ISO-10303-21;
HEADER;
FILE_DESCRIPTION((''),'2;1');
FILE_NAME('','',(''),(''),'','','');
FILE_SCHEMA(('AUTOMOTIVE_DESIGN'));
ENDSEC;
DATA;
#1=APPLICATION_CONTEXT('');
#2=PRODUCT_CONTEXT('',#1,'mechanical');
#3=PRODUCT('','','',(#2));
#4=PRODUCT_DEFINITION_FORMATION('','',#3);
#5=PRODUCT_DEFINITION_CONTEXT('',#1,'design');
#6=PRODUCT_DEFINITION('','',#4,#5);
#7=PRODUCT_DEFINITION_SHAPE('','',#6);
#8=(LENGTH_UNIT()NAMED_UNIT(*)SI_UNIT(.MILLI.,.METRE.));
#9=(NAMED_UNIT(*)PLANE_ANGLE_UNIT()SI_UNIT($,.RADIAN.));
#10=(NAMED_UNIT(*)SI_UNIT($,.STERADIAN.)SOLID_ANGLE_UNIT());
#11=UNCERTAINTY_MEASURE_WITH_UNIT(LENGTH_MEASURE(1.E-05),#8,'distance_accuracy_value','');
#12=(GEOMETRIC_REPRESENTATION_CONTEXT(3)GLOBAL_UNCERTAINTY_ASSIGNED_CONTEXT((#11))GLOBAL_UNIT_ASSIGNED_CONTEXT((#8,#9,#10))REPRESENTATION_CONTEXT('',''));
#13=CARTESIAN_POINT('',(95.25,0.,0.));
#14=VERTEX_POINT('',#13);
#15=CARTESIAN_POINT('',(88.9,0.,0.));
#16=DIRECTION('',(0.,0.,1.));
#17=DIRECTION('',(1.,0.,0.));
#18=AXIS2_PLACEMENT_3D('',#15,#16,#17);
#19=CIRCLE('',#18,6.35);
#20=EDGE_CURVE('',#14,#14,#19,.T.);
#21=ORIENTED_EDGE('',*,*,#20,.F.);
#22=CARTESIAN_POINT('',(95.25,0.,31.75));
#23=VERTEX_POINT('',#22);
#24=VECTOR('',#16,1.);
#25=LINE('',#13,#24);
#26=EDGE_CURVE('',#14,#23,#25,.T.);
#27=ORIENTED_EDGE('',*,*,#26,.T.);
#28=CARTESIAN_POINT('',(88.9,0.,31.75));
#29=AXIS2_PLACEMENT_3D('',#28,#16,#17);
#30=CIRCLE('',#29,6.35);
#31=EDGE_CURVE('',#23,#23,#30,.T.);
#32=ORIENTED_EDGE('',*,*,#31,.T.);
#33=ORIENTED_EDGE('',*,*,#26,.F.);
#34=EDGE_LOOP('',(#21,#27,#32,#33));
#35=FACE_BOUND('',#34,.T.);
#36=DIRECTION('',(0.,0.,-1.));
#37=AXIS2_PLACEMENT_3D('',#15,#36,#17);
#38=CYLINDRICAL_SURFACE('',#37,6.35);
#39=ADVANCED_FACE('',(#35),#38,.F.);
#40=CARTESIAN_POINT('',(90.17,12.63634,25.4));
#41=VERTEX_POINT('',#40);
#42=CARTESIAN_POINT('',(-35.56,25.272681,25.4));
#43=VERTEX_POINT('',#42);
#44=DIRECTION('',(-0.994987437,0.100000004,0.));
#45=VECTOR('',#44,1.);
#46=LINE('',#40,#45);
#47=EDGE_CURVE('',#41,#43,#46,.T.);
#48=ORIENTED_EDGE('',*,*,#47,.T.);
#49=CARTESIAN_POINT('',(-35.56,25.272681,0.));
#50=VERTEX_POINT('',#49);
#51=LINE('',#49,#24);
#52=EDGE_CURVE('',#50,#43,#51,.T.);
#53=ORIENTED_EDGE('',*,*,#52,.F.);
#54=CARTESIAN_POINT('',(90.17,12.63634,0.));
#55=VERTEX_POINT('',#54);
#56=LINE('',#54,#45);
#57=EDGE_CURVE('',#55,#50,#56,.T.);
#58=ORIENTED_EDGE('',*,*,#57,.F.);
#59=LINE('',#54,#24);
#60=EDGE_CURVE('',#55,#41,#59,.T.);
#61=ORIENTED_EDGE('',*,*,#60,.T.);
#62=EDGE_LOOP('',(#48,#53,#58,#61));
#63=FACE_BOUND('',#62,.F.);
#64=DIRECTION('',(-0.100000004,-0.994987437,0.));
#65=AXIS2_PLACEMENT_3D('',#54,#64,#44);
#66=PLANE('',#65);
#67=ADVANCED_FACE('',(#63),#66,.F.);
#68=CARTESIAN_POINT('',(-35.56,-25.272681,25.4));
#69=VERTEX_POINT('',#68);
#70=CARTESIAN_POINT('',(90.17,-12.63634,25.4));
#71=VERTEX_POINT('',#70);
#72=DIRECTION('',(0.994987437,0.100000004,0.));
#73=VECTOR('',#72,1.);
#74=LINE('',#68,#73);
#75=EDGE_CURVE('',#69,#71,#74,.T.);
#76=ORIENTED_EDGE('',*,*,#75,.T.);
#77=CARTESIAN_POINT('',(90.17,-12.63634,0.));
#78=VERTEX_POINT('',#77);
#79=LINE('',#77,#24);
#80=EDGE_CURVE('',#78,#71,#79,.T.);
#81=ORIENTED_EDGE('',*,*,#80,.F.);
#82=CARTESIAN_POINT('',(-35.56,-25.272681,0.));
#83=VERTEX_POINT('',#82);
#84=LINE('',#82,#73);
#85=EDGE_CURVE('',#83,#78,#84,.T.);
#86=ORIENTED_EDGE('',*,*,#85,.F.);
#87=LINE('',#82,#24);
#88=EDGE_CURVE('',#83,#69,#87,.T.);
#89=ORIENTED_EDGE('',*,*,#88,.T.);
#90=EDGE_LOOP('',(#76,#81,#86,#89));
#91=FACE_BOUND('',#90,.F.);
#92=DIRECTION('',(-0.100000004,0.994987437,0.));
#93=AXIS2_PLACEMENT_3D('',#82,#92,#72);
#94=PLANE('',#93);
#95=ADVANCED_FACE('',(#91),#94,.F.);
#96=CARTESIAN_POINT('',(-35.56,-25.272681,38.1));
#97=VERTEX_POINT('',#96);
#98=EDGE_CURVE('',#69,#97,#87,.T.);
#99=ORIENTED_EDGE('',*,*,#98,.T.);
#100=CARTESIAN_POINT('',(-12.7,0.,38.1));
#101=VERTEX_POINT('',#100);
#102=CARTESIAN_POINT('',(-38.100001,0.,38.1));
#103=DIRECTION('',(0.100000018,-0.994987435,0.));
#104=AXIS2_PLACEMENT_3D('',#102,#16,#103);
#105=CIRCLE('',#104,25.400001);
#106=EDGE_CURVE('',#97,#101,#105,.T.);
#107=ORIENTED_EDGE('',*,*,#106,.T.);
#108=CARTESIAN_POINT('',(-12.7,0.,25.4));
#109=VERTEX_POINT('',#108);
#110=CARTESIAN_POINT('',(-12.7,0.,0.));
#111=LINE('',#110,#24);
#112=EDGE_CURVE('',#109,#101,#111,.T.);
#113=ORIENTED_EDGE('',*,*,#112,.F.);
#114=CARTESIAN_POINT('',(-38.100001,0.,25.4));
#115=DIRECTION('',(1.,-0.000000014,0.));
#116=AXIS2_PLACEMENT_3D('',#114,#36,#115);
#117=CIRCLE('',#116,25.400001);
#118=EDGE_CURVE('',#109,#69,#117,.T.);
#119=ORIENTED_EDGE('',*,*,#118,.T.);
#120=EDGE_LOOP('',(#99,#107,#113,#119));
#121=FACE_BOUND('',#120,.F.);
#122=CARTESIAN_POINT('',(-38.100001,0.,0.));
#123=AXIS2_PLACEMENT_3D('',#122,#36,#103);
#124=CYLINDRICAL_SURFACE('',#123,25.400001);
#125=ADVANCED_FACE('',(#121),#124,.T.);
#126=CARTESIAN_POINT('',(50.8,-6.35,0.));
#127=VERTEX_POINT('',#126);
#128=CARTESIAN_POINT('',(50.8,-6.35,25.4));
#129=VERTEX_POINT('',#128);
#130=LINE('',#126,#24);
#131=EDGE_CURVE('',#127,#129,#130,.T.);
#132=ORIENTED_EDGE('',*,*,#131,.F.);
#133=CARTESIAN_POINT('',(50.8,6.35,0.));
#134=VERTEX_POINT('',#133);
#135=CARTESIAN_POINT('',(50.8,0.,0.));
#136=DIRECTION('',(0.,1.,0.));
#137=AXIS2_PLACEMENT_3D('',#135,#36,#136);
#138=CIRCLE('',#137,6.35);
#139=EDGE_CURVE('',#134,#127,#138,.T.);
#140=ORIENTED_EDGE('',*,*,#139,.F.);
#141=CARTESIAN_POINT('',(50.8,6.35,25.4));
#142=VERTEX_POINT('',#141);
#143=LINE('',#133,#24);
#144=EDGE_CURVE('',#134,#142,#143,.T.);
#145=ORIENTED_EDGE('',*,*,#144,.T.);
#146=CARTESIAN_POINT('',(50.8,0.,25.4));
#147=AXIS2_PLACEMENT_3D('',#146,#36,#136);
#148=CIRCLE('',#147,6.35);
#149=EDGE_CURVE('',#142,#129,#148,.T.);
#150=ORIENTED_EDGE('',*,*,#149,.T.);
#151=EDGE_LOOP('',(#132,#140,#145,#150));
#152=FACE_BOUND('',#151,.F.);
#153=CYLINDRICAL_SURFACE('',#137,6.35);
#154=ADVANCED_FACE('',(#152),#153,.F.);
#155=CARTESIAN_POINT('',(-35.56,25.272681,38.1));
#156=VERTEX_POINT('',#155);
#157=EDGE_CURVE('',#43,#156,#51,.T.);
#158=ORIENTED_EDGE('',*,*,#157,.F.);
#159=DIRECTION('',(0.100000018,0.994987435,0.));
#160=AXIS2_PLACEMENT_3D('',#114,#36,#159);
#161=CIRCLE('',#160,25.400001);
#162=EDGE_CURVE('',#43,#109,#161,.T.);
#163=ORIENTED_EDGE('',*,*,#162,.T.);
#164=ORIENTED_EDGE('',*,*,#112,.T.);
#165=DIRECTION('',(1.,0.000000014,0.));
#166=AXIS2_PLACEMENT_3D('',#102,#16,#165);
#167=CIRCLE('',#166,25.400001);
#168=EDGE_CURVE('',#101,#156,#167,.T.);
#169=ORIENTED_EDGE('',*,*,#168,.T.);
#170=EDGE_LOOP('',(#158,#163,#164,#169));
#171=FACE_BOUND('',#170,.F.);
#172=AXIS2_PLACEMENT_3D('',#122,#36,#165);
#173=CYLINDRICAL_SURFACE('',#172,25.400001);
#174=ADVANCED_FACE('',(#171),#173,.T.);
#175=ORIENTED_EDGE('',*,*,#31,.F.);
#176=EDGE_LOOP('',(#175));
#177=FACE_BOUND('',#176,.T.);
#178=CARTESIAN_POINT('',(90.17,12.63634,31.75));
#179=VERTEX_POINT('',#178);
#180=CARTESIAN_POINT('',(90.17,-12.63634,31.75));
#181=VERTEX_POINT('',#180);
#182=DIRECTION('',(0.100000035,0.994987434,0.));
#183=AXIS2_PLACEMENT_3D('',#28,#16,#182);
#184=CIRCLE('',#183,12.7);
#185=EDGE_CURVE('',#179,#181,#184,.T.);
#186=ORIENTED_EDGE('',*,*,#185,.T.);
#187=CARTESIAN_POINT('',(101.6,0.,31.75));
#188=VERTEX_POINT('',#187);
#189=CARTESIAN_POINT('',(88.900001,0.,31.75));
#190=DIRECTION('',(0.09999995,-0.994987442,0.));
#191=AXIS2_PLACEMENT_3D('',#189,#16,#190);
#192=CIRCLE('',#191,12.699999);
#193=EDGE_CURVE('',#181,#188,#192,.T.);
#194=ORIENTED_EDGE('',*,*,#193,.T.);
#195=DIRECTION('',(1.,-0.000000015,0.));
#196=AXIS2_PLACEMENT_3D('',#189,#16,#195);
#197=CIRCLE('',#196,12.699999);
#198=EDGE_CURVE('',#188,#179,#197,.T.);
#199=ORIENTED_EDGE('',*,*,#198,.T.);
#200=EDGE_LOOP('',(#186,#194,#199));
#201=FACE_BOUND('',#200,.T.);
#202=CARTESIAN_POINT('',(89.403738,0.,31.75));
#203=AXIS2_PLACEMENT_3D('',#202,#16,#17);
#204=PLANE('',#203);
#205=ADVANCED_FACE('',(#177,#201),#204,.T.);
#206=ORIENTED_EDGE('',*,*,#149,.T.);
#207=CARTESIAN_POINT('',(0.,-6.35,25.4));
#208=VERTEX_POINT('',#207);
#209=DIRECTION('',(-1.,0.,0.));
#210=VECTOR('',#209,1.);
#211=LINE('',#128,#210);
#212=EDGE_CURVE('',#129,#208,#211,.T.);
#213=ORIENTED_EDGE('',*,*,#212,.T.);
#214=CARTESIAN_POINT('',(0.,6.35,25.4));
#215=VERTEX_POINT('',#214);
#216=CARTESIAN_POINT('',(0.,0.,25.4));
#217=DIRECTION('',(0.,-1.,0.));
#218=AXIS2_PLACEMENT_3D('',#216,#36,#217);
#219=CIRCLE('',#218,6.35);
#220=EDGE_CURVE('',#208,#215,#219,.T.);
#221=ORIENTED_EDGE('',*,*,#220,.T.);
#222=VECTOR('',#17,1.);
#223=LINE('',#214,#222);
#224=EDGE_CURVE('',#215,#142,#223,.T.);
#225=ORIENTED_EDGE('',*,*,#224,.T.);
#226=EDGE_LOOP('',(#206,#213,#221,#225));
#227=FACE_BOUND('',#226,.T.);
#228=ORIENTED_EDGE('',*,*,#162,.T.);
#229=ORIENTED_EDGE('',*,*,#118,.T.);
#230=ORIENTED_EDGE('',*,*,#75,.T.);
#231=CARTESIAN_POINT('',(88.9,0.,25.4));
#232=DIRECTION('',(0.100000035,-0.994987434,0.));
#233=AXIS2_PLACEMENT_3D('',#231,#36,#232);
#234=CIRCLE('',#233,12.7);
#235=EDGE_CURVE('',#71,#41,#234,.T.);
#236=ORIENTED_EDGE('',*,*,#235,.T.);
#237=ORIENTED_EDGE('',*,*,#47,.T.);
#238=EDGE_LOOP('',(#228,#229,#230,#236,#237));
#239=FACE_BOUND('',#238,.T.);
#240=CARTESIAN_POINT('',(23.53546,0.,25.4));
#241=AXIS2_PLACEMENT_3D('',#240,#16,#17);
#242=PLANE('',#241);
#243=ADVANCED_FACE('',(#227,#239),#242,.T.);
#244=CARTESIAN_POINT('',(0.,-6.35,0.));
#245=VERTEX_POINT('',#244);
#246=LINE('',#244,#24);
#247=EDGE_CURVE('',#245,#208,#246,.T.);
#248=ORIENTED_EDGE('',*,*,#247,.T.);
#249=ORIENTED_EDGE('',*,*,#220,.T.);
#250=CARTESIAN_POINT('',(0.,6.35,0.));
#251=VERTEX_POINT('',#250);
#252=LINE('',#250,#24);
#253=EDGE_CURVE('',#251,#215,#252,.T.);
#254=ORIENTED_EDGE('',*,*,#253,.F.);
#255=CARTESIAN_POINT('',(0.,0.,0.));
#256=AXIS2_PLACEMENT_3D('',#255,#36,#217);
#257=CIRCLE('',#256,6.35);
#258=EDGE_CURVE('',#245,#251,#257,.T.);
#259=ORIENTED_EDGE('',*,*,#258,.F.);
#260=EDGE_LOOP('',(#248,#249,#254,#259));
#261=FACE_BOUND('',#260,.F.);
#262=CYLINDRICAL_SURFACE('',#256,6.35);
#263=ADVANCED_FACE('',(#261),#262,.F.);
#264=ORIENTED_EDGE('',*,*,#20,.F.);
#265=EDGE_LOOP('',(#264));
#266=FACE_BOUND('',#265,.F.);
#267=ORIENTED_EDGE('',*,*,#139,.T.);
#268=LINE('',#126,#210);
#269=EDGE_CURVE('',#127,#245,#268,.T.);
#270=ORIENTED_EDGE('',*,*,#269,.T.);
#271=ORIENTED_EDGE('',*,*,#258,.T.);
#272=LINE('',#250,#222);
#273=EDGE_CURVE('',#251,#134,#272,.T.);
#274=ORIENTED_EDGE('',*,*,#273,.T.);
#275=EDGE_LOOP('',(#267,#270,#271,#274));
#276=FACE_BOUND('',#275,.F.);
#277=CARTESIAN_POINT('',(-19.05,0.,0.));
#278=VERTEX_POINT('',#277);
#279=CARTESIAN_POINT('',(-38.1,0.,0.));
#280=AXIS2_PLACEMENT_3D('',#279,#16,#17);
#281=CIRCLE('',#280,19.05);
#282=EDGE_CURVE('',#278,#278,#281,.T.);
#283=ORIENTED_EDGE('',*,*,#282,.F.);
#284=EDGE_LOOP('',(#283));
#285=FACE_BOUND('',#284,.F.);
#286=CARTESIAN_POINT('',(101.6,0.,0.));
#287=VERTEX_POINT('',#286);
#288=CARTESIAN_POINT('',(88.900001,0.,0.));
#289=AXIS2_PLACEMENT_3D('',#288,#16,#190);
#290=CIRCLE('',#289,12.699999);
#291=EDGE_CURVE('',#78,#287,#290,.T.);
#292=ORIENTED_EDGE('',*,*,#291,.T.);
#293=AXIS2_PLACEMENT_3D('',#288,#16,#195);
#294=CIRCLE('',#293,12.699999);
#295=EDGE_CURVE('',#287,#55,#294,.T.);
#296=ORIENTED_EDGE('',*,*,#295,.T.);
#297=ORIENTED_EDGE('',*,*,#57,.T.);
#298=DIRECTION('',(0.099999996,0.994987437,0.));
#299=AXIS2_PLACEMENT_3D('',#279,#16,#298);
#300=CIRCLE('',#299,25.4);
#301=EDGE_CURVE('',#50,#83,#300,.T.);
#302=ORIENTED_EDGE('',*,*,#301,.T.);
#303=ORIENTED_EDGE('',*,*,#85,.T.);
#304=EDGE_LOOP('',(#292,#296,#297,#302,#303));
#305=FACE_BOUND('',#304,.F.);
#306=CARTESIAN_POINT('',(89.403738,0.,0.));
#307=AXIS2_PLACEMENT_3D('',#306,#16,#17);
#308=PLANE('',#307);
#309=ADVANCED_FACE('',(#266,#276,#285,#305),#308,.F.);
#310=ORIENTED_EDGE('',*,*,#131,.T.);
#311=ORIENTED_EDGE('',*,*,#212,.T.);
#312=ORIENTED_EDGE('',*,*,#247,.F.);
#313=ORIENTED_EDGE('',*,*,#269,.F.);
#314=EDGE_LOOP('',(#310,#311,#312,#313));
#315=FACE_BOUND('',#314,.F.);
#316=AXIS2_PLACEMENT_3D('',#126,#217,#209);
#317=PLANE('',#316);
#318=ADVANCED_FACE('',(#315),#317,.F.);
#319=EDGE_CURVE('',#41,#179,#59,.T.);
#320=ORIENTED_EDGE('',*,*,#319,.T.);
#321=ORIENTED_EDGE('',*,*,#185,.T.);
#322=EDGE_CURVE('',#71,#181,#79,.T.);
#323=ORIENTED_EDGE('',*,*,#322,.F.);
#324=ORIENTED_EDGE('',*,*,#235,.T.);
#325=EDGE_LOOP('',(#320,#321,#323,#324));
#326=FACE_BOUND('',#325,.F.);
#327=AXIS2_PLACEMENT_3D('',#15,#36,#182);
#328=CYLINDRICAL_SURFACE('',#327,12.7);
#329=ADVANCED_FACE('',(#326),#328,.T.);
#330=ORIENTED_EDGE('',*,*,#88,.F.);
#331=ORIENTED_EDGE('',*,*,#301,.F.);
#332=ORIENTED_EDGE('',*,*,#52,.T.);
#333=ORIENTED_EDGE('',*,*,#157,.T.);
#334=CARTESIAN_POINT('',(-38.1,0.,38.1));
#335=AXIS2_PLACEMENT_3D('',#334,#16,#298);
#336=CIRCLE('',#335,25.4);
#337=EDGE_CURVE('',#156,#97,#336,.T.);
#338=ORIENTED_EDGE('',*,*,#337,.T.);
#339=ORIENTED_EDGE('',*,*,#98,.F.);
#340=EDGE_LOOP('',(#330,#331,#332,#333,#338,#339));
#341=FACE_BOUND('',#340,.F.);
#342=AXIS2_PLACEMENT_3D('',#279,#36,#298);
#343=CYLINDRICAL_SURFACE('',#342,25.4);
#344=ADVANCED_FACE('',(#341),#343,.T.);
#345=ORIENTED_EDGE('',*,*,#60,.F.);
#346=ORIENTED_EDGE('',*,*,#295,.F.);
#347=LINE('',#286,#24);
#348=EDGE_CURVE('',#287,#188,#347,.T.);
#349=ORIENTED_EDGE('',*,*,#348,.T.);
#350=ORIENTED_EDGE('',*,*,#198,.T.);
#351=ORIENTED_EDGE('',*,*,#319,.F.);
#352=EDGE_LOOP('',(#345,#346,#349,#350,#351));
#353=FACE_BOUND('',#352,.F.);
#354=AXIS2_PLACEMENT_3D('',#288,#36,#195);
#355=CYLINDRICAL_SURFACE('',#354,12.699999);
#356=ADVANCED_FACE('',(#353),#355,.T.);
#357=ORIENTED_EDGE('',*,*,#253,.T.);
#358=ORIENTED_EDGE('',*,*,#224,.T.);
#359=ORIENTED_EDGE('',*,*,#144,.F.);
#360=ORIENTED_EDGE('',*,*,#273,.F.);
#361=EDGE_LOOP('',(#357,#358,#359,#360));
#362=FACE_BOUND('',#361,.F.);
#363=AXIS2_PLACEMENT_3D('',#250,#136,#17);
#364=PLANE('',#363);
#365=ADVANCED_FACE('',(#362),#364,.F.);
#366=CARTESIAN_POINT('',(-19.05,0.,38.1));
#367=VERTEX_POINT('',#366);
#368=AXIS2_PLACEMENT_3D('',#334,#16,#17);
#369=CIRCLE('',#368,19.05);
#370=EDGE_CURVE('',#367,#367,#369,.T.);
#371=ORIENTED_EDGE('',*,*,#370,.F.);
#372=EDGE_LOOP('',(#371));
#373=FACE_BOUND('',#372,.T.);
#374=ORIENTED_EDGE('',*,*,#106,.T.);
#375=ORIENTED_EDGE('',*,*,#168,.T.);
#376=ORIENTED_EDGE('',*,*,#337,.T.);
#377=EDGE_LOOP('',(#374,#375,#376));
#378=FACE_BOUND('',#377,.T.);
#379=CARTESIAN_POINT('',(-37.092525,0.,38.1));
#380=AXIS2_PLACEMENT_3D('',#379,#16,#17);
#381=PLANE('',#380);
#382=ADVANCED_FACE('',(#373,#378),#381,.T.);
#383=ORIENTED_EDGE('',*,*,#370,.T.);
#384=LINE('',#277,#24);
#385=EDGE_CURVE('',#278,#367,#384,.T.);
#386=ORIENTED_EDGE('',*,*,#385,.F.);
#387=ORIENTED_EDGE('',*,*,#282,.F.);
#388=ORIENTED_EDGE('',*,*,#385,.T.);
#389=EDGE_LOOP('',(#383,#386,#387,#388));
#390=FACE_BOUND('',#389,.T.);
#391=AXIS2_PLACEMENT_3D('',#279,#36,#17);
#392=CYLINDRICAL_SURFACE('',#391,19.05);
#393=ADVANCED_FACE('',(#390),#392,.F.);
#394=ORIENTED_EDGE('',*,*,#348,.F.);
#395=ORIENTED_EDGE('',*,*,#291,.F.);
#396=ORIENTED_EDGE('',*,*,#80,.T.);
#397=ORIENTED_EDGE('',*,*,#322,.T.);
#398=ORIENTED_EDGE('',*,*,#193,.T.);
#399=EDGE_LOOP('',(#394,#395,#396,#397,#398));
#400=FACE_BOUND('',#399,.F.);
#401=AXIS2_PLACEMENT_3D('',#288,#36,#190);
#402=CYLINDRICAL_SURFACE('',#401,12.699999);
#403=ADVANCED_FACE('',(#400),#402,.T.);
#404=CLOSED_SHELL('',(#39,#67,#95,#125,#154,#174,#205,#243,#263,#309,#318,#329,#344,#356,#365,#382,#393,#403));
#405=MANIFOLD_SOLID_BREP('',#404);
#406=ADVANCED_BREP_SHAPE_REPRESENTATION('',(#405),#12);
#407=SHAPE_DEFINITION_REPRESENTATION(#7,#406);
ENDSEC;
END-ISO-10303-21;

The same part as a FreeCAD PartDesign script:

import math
import FreeCAD as App
import Part
import Sketcher
Q = App.Units.Quantity

doc = App.newDocument("Part")
body = doc.addObject("PartDesign::Body", "Body")

# Sketch on XY plane
sketch1 = body.newObject("Sketcher::SketchObject", "Sketch")
sketch1.AttachmentSupport = (doc.getObject("XY_Plane"), [""])
sketch1.MapMode = "FlatFace"
sketch1.addGeometry([
    Part.ArcOfCircle(Part.Circle(App.Vector(-38, 0, 0), App.Vector(0, 0, 1), 25), math.radians(0), math.radians(84)),
    Part.ArcOfCircle(Part.Circle(App.Vector(-38, 0, 0), App.Vector(0, 0, 1), 25), math.radians(84), math.radians(276)),
    Part.ArcOfCircle(Part.Circle(App.Vector(-38, 0, 0), App.Vector(0, 0, 1), 25), math.radians(-84), math.radians(0)),
    Part.Circle(App.Vector(-38, 0, 0), App.Vector(0, 0, 1), 19),
], False)
sketch1.addConstraint([
    Sketcher.Constraint("Tangent", 0, 2, 1, 1),
    Sketcher.Constraint("Tangent", 1, 2, 2, 1),
    Sketcher.Constraint("Tangent", 2, 2, 0, 1),
    Sketcher.Constraint("Coincident", 3, 3, 0, 3),
    Sketcher.Constraint("Symmetric", 0, 2, 1, 2, -1),
    Sketcher.Constraint("PointOnObject", 2, 2, -1),
    Sketcher.Constraint("Radius", 0, Q("1 in")),
    Sketcher.Constraint("Diameter", 3, Q("1.5 in")),
    Sketcher.Constraint("DistanceX", 0, 3, -1, 1, Q("1.5 in")),
    Sketcher.Constraint("DistanceX", 0, 2, -1, 1, Q("1.4 in")),
])
pad1 = body.newObject("PartDesign::Pad", "Pad")
pad1.Profile = sketch1
pad1.Length = Q("1.5 in")

# Sketch on XY plane
sketch2 = body.newObject("Sketcher::SketchObject", "Sketch001")
sketch2.AttachmentSupport = (doc.getObject("XY_Plane"), [""])
sketch2.MapMode = "FlatFace"
sketch2.addGeometry([
    Part.ArcOfCircle(Part.Circle(App.Vector(89, 0, 0), App.Vector(0, 0, 1), 13), math.radians(84), math.radians(276)),  # 0
    Part.LineSegment(App.Vector(90, 13, 0), App.Vector(-36, 25, 0)),  # 1
    Part.ArcOfCircle(Part.Circle(App.Vector(-38, 0, 0), App.Vector(0, 0, 1), 25), math.radians(0), math.radians(84)),  # 2
    Part.ArcOfCircle(Part.Circle(App.Vector(-38, 0, 0), App.Vector(0, 0, 1), 25), math.radians(-84), math.radians(0)),  # 3
    Part.LineSegment(App.Vector(-36, -25, 0), App.Vector(90, -13, 0)),  # 4
    Part.LineSegment(App.Vector(51, -6, 0), App.Vector(0, -6, 0)),  # 5
    Part.ArcOfCircle(Part.Circle(App.Vector(0, 0, 0), App.Vector(0, 0, 1), 6), math.radians(90), math.radians(270)),  # 6
    Part.LineSegment(App.Vector(0, 6, 0), App.Vector(51, 6, 0)),  # 7
    Part.ArcOfCircle(Part.Circle(App.Vector(51, 0, 0), App.Vector(0, 0, 1), 6), math.radians(-90), math.radians(90)),  # 8
], False)
sketch2.addConstraint([
    Sketcher.Constraint("Tangent", 0, 1, 1, 1),
    Sketcher.Constraint("Tangent", 1, 2, 2, 2),
    Sketcher.Constraint("Tangent", 2, 1, 3, 2),
    Sketcher.Constraint("Tangent", 3, 1, 4, 1),
    Sketcher.Constraint("Tangent", 4, 2, 0, 2),
    Sketcher.Constraint("Tangent", 5, 2, 6, 2),
    Sketcher.Constraint("Tangent", 6, 1, 7, 1),
    Sketcher.Constraint("Tangent", 7, 2, 8, 2),
    Sketcher.Constraint("Tangent", 8, 1, 5, 1),
    Sketcher.Constraint("Horizontal", 5),
    Sketcher.Constraint("Horizontal", 7),
    Sketcher.Constraint("Coincident", 6, 3, -1, 1),
    Sketcher.Constraint("Equal", 2, 3),
    Sketcher.Constraint("Symmetric", 1, 2, 3, 1, -1),
    Sketcher.Constraint("PointOnObject", 2, 1, -1),
    Sketcher.Constraint("Radius", 2, Q("1 in")),
    Sketcher.Constraint("Radius", 0, Q("0.5 in")),
    Sketcher.Constraint("DistanceX", 5, 2, 5, 1, Q("2 in")),
    Sketcher.Constraint("Radius", 6, Q("0.25 in")),
    Sketcher.Constraint("DistanceX", 2, 3, 0, 3, Q("5 in")),
    Sketcher.Constraint("DistanceX", -1, 1, 0, 3, Q("3.5 in")),
])
pad2 = body.newObject("PartDesign::Pad", "Pad001")
pad2.Profile = sketch2
pad2.Length = Q("1 in")

# Sketch on XY plane
sketch3 = body.newObject("Sketcher::SketchObject", "Sketch002")
sketch3.AttachmentSupport = (doc.getObject("XY_Plane"), [""])
sketch3.MapMode = "FlatFace"
sketch3.addGeometry([
    Part.ArcOfCircle(Part.Circle(App.Vector(89, 0, 0), App.Vector(0, 0, 1), 13), math.radians(-84), math.radians(0)),
    Part.ArcOfCircle(Part.Circle(App.Vector(89, 0, 0), App.Vector(0, 0, 1), 13), math.radians(0), math.radians(84)),
    Part.ArcOfCircle(Part.Circle(App.Vector(89, 0, 0), App.Vector(0, 0, 1), 13), math.radians(84), math.radians(276)),
    Part.Circle(App.Vector(89, 0, 0), App.Vector(0, 0, 1), 6),
], False)
sketch3.addConstraint([
    Sketcher.Constraint("Tangent", 0, 2, 1, 1),
    Sketcher.Constraint("Tangent", 1, 2, 2, 1),
    Sketcher.Constraint("Tangent", 2, 2, 0, 1),
    Sketcher.Constraint("Coincident", 3, 3, 0, 3),
    Sketcher.Constraint("Symmetric", 1, 2, 2, 2, -1),
    Sketcher.Constraint("PointOnObject", 0, 2, -1),
    Sketcher.Constraint("Diameter", 3, Q("0.5 in")),
    Sketcher.Constraint("Radius", 0, Q("0.5 in")),
    Sketcher.Constraint("DistanceX", -1, 1, 0, 2, Q("4 in")),
    Sketcher.Constraint("DistanceX", -1, 1, 1, 2, Q("3.55 in")),
])
pad3 = body.newObject("PartDesign::Pad", "Pad002")
pad3.Profile = sketch3
pad3.Length = Q("1.25 in")

doc.recompute()
